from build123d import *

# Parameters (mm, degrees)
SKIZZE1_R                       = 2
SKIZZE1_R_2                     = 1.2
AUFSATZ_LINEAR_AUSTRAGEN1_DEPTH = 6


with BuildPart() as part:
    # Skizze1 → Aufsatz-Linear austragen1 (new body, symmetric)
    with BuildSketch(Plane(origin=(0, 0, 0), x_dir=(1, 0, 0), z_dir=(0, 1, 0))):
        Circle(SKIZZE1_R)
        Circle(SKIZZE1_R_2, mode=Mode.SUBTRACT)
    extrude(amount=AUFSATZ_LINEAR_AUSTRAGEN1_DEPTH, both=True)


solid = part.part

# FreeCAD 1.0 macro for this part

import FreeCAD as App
import Part
import Sketcher
from FreeCAD import Vector
Q = App.Units.Quantity

doc = App.newDocument("Part")
params = doc.addObject("Spreadsheet::Sheet", "Params")
for row, (alias, value) in enumerate([
    ("sketch1_diameter", "4 mm"),
    ("sketch1_diameter2", "2.4 mm"),
    ("pad1_length", "12 mm"),
], start=1):
    params.set(f"A{row}", alias)
    params.set(f"B{row}", "=" + value)
    params.setAlias(f"B{row}", alias)

body = doc.addObject("PartDesign::Body", "Body")

# Sketch on XZ plane
sketch1 = doc.addObject("Sketcher::SketchObject", "Sketch")
body.addObject(sketch1)
sketch1.AttachmentSupport = (doc.XZ_Plane, [""])
sketch1.MapMode = "FlatFace"
sketch1.addGeometry(Part.Circle(Vector(0, 0, 0), Vector(0, 0, 1), 2), False)
sketch1.addGeometry(Part.Circle(Vector(0, 0, 0), Vector(0, 0, 1), 1.2), False)
sketch1.addConstraint(Sketcher.Constraint("Coincident", 0, 3, -1, 1))
sketch1.addConstraint(Sketcher.Constraint("Coincident", 1, 3, -1, 1))
sketch1.addConstraint(Sketcher.Constraint("Diameter", 0, Q("4 mm")))
sketch1.addConstraint(Sketcher.Constraint("Diameter", 1, Q("2.4 mm")))
sketch1.setExpression("Constraints[2]", "Params.sketch1_diameter")
sketch1.setExpression("Constraints[3]", "Params.sketch1_diameter2")
pad1 = doc.addObject("PartDesign::Pad", "Pad")
body.addObject(pad1)
pad1.Profile = sketch1
pad1.setExpression("Length", "Params.pad1_length")
pad1.Midplane = True

doc.recompute()
